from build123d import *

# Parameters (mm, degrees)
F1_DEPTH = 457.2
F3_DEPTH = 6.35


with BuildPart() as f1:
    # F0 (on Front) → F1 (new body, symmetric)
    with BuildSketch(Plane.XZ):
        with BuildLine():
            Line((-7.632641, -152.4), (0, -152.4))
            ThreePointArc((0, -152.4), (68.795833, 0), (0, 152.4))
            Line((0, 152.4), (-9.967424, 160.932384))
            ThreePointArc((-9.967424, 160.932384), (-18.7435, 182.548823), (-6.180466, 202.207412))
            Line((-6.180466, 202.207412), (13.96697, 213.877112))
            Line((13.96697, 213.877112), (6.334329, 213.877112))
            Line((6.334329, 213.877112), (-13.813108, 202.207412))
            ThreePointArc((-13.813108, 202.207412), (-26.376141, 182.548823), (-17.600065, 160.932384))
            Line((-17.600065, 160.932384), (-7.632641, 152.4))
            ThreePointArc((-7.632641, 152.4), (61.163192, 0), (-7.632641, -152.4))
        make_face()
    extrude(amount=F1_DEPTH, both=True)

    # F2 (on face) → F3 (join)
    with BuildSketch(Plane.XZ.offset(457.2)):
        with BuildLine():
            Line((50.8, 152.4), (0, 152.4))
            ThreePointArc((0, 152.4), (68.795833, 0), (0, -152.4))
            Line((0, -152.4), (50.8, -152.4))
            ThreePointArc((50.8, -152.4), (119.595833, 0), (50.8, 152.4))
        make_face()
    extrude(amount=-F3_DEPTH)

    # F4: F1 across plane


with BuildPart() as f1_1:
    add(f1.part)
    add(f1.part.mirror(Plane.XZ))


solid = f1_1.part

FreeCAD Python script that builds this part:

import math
import FreeCAD as App
import Part
import Sketcher
from FreeCAD import Vector
Q = App.Units.Quantity

doc = App.newDocument("Part")
params = doc.addObject("Spreadsheet::Sheet", "Params")
for row, (alias, value) in enumerate([
    ("sketch1_radius", "8 in"),
    ("sketch1_radius2", "1 in"),
    ("pad1_length", "36 in"),
    ("sketch2_radius", "8 in"),
    ("sketch2_width", "2 in"),
    ("pad2_length", "0.25 in"),
], start=1):
    params.set(f"A{row}", alias)
    params.set(f"B{row}", "=" + value)
    params.setAlias(f"B{row}", alias)

body = doc.addObject("PartDesign::Body", "Body")

sketch1 = body.newObject("Sketcher::SketchObject", "Sketch")
sketch1.AttachmentSupport = (doc.getObject("XZ_Plane"), [""])
sketch1.MapMode = "FlatFace"
sketch1.addGeometry([
    Part.LineSegment(Vector(-8, -152, 0), Vector(0, -152, 0)),
    Part.ArcOfCircle(Part.Circle(Vector(-134, 0, 0), Vector(0, 0, 1), 203), math.radians(-49), math.radians(49)),
    Part.LineSegment(Vector(0, 152, 0), Vector(-10, 161, 0)),
    Part.ArcOfCircle(Part.Circle(Vector(7, 180, 0), Vector(0, 0, 1), 25), math.radians(120), math.radians(229)),
    Part.LineSegment(Vector(-6, 202, 0), Vector(14, 214, 0)),
    Part.LineSegment(Vector(14, 214, 0), Vector(6, 214, 0)),
    Part.LineSegment(Vector(6, 214, 0), Vector(-14, 202, 0)),
    Part.ArcOfCircle(Part.Circle(Vector(-1, 180, 0), Vector(0, 0, 1), 25), math.radians(120), math.radians(229)),
    Part.LineSegment(Vector(-18, 161, 0), Vector(-8, 152, 0)),
    Part.ArcOfCircle(Part.Circle(Vector(-142, 0, 0), Vector(0, 0, 1), 203), math.radians(-49), math.radians(49)),
], False)
sketch1.addConstraint([
    Sketcher.Constraint("Coincident", 0, 2, 1, 1),
    Sketcher.Constraint("Coincident", 1, 2, 2, 1),
    Sketcher.Constraint("Tangent", 2, 2, 3, 2),
    Sketcher.Constraint("Tangent", 3, 1, 4, 1),
    Sketcher.Constraint("Coincident", 4, 2, 5, 1),
    Sketcher.Constraint("Coincident", 5, 2, 6, 1),
    Sketcher.Constraint("Tangent", 6, 2, 7, 1),
    Sketcher.Constraint("Tangent", 7, 2, 8, 1),
    Sketcher.Constraint("Coincident", 8, 2, 9, 2),
    Sketcher.Constraint("Coincident", 9, 1, 0, 1),
    Sketcher.Constraint("Horizontal", 0),
    Sketcher.Constraint("Horizontal", 5),
    Sketcher.Constraint("Equal", 3, 7),
    Sketcher.Constraint("Equal", 1, 9),
    Sketcher.Constraint("Symmetric", 0, 2, 1, 2, -1, 1),
    Sketcher.Constraint("Symmetric", 8, 2, 9, 1, -1),
    Sketcher.Constraint("PointOnObject", 1, 3, -1),
    Sketcher.Constraint("Parallel", 4, 6),
    Sketcher.Constraint("Parallel", 2, 8),
    Sketcher.Constraint("Horizontal", 3, 3, 7, 3),
    Sketcher.Constraint("Radius", 1, Q("8 in")),
    Sketcher.Constraint("Radius", 3, Q("1 in")),
    Sketcher.Constraint("DistanceY", 0, 2, -1, 1, Q("6 in")),
    Sketcher.Constraint("DistanceX", 0, 1, 0, 2, 7.632641),
    Sketcher.Constraint("DistanceX", 1, 3, 3, 1, 128.223702),
    Sketcher.Constraint("DistanceY", 3, 1, 4, 2, 11.6697),
    Sketcher.Constraint("DistanceX", -1, 1, 4, 2, 13.96697),
    Sketcher.Constraint("DistanceY", -1, 1, 6, 2, 202.207412),
])
sketch1.setExpression("Constraints[20]", "Params.sketch1_radius")
sketch1.setExpression("Constraints[21]", "Params.sketch1_radius2")
pad1 = body.newObject("PartDesign::Pad", "Pad")
pad1.Profile = sketch1
pad1.setExpression("Length", "Params.pad1_length")
pad1.Midplane = True

sketch2 = body.newObject("Sketcher::SketchObject", "Sketch001")
sketch2.AttachmentSupport = (doc.getObject("XZ_Plane"), [""])
sketch2.MapMode = "FlatFace"
sketch2.AttachmentOffset = App.Placement(Vector(0, 0, 18 * 25.4), App.Rotation())
sketch2.addGeometry([
    Part.LineSegment(Vector(51, 152, 0), Vector(0, 152, 0)),
    Part.ArcOfCircle(Part.Circle(Vector(-134, 0, 0), Vector(0, 0, 1), 203), math.radians(-49), math.radians(49)),
    Part.LineSegment(Vector(0, -152, 0), Vector(51, -152, 0)),
    Part.ArcOfCircle(Part.Circle(Vector(-84, 0, 0), Vector(0, 0, 1), 203), math.radians(-49), math.radians(49)),
], False)
sketch2.addConstraint([
    Sketcher.Constraint("Coincident", 0, 2, 1, 2),
    Sketcher.Constraint("Coincident", 1, 1, 2, 1),
    Sketcher.Constraint("Coincident", 2, 2, 3, 1),
    Sketcher.Constraint("Coincident", 3, 2, 0, 1),
    Sketcher.Constraint("Horizontal", 0),
    Sketcher.Constraint("Horizontal", 2),
    Sketcher.Constraint("Equal", 1, 3),
    Sketcher.Constraint("Symmetric", 0, 2, 1, 1, -1, 1),
    Sketcher.Constraint("PointOnObject", 1, 3, -1),
    Sketcher.Constraint("PointOnObject", 3, 3, -1),
    Sketcher.Constraint("Radius", 1, Q("8 in")),
    Sketcher.Constraint("DistanceX", 0, 2, 0, 1, Q("2 in")),
    Sketcher.Constraint("DistanceY", -1, 1, 0, 2, Q("6 in")),
])
sketch2.setExpression("Constraints[10]", "Params.sketch2_radius")
sketch2.setExpression("Constraints[11]", "Params.sketch2_width")
pad2 = body.newObject("PartDesign::Pad", "Pad001")
pad2.Profile = sketch2
pad2.setExpression("Length", "Params.pad2_length")
pad2.Reversed = True
body2 = doc.addObject("PartDesign::Body", "Body001")
doc.recompute()

body2.BaseFeature = body
doc.recompute()

mirroring = doc.addObject("Part::Mirroring", "Mirroring")
mirroring.Source = body
mirroring.Base = Vector(0, 0, 0)
mirroring.Normal = Vector(0, -1, 0)
body3 = doc.addObject("PartDesign::Body", "Body002")
body3.BaseFeature = mirroring
boolean = body2.newObject("PartDesign::Boolean", "Boolean")
boolean.Type = "Fuse"
boolean.addObjects([body3])
doc.recompute()
mirroring.Visibility = False

doc.recompute()
